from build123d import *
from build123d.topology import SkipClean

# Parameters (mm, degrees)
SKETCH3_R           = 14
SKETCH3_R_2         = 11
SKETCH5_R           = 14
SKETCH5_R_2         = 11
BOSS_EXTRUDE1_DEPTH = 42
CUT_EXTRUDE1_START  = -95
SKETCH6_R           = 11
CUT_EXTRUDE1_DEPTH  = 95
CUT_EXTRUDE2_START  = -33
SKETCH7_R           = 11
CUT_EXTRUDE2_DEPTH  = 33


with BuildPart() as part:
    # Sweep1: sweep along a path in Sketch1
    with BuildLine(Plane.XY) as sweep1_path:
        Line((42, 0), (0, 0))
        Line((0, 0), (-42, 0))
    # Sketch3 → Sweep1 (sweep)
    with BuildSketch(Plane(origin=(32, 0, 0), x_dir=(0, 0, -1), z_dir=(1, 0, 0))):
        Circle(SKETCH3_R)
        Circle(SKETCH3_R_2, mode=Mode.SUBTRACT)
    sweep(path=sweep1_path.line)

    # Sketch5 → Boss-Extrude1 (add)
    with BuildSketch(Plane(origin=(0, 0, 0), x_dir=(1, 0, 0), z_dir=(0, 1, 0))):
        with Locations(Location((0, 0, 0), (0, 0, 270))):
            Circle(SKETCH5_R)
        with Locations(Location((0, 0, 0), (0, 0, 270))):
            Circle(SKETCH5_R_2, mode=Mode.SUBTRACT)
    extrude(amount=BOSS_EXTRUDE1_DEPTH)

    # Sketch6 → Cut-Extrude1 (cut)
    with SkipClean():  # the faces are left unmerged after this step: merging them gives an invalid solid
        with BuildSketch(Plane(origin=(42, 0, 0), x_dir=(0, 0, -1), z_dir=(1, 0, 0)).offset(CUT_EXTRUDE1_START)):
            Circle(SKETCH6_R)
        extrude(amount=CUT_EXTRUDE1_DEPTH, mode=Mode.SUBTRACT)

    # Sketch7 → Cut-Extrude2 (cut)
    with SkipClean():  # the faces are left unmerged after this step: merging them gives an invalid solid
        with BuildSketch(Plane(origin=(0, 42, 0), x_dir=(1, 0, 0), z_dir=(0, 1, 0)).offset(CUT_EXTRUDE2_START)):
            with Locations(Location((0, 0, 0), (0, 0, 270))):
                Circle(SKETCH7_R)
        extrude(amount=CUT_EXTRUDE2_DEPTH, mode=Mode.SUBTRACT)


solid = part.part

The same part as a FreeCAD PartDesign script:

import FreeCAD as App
import Part
import Sketcher
from FreeCAD import Vector

doc = App.newDocument("Part")
body = doc.addObject("PartDesign::Body", "Body")

# Sketch on YZ plane
sketch1 = body.newObject("Sketcher::SketchObject", "Sketch")
sketch1.AttachmentSupport = (doc.getObject("YZ_Plane"), [""])
sketch1.MapMode = "FlatFace"
sketch1.AttachmentOffset = App.Placement(Vector(0, 0, 32), App.Rotation())
sketch1.addGeometry(Part.Circle(Vector(0, 0, 0), Vector(0, 0, 1), 14), False)
sketch1.addGeometry(Part.Circle(Vector(0, 0, 0), Vector(0, 0, 1), 11), False)
sketch1.addConstraint(Sketcher.Constraint("Coincident", 0, 3, -1, 1))
sketch1.addConstraint(Sketcher.Constraint("Coincident", 1, 3, -1, 1))
sketch1.addConstraint(Sketcher.Constraint("Diameter", 0, 28.0))
sketch1.addConstraint(Sketcher.Constraint("Diameter", 1, 22.0))

# Sketch on XY plane
sketch2 = body.newObject("Sketcher::SketchObject", "Sketch001")
sketch2.AttachmentSupport = (doc.getObject("XY_Plane"), [""])
sketch2.MapMode = "FlatFace"
sketch2.addGeometry(Part.LineSegment(Vector(42, 0, 0), Vector(-42, 0, 0)), False)
sketch2.addConstraint(Sketcher.Constraint("Horizontal", 0))
sketch2.addConstraint(Sketcher.Constraint("Symmetric", 0, 1, 0, 2, -1, 1))
sketch2.addConstraint(Sketcher.Constraint("DistanceX", 0, 2, 0, 1, 84.0))
doc.recompute()

additivepipe = body.newObject("PartDesign::AdditivePipe", "AdditivePipe")
additivepipe.Profile = sketch1
additivepipe.Spine = (sketch2, ["Edge1"])

# Sketch on XZ plane
sketch3 = body.newObject("Sketcher::SketchObject", "Sketch002")
sketch3.AttachmentSupport = (doc.getObject("XZ_Plane"), [""])
sketch3.MapMode = "FlatFace"
sketch3.addGeometry(Part.Circle(Vector(0, 0, 0), Vector(0, 0, 1), 14), False)
sketch3.addGeometry(Part.Circle(Vector(0, 0, 0), Vector(0, 0, 1), 11), False)
sketch3.addConstraint(Sketcher.Constraint("Coincident", 0, 3, -1, 1))
sketch3.addConstraint(Sketcher.Constraint("Coincident", 1, 3, -1, 1))
sketch3.addConstraint(Sketcher.Constraint("Diameter", 0, 28.0))
sketch3.addConstraint(Sketcher.Constraint("Diameter", 1, 22.0))
pad1 = body.newObject("PartDesign::Pad", "Pad")
pad1.Profile = sketch3
pad1.Length = 42
pad1.Reversed = True

# Sketch on YZ plane
sketch4 = body.newObject("Sketcher::SketchObject", "Sketch003")
sketch4.AttachmentSupport = (doc.getObject("YZ_Plane"), [""])
sketch4.MapMode = "FlatFace"
sketch4.AttachmentOffset = App.Placement(Vector(0, 0, -53), App.Rotation())
sketch4.addGeometry(Part.Circle(Vector(0, 0, 0), Vector(0, 0, 1), 11), False)
sketch4.addConstraint(Sketcher.Constraint("Coincident", 0, 3, -1, 1))
sketch4.addConstraint(Sketcher.Constraint("Diameter", 0, 22.0))
pocket1 = body.newObject("PartDesign::Pocket", "Pocket")
pocket1.Profile = sketch4
pocket1.Length = 95
pocket1.Reversed = True

# Sketch on XZ plane
sketch5 = body.newObject("Sketcher::SketchObject", "Sketch004")
sketch5.AttachmentSupport = (doc.getObject("XZ_Plane"), [""])
sketch5.MapMode = "FlatFace"
sketch5.AttachmentOffset = App.Placement(Vector(0, 0, -9), App.Rotation())
sketch5.addGeometry(Part.Circle(Vector(0, 0, 0), Vector(0, 0, 1), 11), False)
sketch5.addConstraint(Sketcher.Constraint("Coincident", 0, 3, -1, 1))
sketch5.addConstraint(Sketcher.Constraint("Diameter", 0, 22.0))
pocket2 = body.newObject("PartDesign::Pocket", "Pocket001")
pocket2.Profile = sketch5
pocket2.Length = 33

doc.recompute()
